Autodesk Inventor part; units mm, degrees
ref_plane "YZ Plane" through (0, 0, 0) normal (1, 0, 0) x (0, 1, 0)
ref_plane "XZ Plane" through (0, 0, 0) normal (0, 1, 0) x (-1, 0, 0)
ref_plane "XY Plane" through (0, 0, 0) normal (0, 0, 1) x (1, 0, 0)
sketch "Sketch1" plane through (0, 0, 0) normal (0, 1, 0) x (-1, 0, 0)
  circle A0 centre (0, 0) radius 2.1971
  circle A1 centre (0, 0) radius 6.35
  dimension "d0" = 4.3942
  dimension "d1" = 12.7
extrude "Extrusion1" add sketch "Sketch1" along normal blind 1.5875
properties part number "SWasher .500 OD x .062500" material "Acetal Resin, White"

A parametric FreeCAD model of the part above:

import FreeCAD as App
import Part
import Sketcher

V = App.Vector
Q = App.Units.Quantity

doc = App.newDocument("Part")
body = doc.addObject("PartDesign::Body", "Body")

# Sketch on XZ plane
sketch1 = doc.addObject("Sketcher::SketchObject", "Sketch")
body.addObject(sketch1)
sketch1.AttachmentSupport = (doc.XZ_Plane, [""])
sketch1.MapMode = "FlatFace"
sketch1.addGeometry(Part.Circle(V(0, 0, 0), V(0, 0, 1), 6.3), False)
sketch1.addGeometry(Part.Circle(V(0, 0, 0), V(0, 0, 1), 2.2), False)
sketch1.addConstraint(Sketcher.Constraint("Coincident", 0, 3, -1, 1))
sketch1.addConstraint(Sketcher.Constraint("Coincident", 1, 3, -1, 1))
sketch1.addConstraint(Sketcher.Constraint("Diameter", 0, Q("0.5 in")))
sketch1.addConstraint(Sketcher.Constraint("Diameter", 1, Q("0.173 in")))
pad1 = doc.addObject("PartDesign::Pad", "Pad")
body.addObject(pad1)
pad1.Profile = sketch1
pad1.Length = Q("0.0625 in")
pad1.Reversed = True

doc.recompute()
